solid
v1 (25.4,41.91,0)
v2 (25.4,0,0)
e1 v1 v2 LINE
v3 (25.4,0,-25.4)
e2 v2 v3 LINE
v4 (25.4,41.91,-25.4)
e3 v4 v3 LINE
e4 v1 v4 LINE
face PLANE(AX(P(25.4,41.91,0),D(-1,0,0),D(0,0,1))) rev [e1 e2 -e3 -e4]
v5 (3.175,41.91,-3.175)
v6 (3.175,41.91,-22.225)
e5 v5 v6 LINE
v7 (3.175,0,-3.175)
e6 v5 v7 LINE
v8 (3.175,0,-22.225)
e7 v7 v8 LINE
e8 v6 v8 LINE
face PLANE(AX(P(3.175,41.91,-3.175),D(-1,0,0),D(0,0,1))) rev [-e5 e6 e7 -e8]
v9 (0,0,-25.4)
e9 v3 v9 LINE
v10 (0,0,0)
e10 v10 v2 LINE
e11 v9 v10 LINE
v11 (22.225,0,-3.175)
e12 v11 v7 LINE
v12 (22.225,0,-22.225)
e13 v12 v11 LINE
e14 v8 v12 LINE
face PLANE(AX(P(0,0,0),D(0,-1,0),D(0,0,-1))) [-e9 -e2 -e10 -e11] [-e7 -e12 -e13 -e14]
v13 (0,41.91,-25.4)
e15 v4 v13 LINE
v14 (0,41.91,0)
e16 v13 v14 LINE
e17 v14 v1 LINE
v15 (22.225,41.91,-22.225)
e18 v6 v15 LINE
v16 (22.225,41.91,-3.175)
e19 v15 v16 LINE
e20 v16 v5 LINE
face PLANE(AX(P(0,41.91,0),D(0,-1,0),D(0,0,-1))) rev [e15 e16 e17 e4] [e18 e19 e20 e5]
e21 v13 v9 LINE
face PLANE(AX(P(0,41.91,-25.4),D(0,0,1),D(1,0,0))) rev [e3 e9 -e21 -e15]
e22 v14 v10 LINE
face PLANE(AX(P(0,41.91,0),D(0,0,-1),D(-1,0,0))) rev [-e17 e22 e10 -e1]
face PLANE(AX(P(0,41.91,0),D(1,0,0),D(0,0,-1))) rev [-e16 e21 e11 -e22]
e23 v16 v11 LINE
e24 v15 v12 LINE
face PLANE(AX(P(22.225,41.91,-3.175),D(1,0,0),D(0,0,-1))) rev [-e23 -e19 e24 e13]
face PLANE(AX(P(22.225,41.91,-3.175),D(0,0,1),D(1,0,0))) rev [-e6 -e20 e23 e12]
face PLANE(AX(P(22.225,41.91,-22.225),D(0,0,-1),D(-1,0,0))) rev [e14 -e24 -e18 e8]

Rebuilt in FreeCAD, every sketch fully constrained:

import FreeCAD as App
import Part
import Sketcher
from FreeCAD import Vector
Q = App.Units.Quantity

doc = App.newDocument("Part")
params = doc.addObject("Spreadsheet::Sheet", "Params")
for row, (alias, value) in enumerate([
    ("sketch1_width", "1 in"),
    ("pad1_length", "1.65 in"),
    ("sketch2_width", "0.75 in"),
], start=1):
    params.set(f"A{row}", alias)
    params.set(f"B{row}", "=" + value)
    params.setAlias(f"B{row}", alias)

body = doc.addObject("PartDesign::Body", "Body")

sketch1 = doc.addObject("Sketcher::SketchObject", "Sketch")
body.addObject(sketch1)
sketch1.AttachmentSupport = (doc.XZ_Plane, [""])
sketch1.MapMode = "FlatFace"
sketch1.addGeometry([
    Part.LineSegment(Vector(0, -25.4, 0), Vector(0, 0, 0)),
    Part.LineSegment(Vector(0, 0, 0), Vector(25.4, 0, 0)),
    Part.LineSegment(Vector(25.4, 0, 0), Vector(25.4, -25.4, 0)),
    Part.LineSegment(Vector(25.4, -25.4, 0), Vector(0, -25.4, 0)),
], False)
sketch1.addConstraint([
    Sketcher.Constraint("Coincident", 0, 2, 1, 1),
    Sketcher.Constraint("Coincident", 1, 2, 2, 1),
    Sketcher.Constraint("Coincident", 2, 2, 3, 1),
    Sketcher.Constraint("Coincident", 3, 2, 0, 1),
    Sketcher.Constraint("Vertical", 0),
    Sketcher.Constraint("Horizontal", 1),
    Sketcher.Constraint("Vertical", 2),
    Sketcher.Constraint("Horizontal", 3),
    Sketcher.Constraint("Coincident", 0, 2, -1, 1),
    Sketcher.Constraint("Equal", 3, 0),
    Sketcher.Constraint("DistanceX", 1, 1, 1, 2, Q("1 in")),
])
sketch1.setExpression("Constraints[10]", "Params.sketch1_width")
pad1 = doc.addObject("PartDesign::Pad", "Pad")
body.addObject(pad1)
pad1.Profile = sketch1
pad1.setExpression("Length", "Params.pad1_length")
pad1.Reversed = True

sketch2 = doc.addObject("Sketcher::SketchObject", "Sketch001")
body.addObject(sketch2)
sketch2.AttachmentSupport = (doc.XZ_Plane, [""])
sketch2.MapMode = "FlatFace"
sketch2.addGeometry([
    Part.LineSegment(Vector(22.225, -22.225, 0), Vector(22.225, -3.175, 0)),
    Part.LineSegment(Vector(22.225, -3.175, 0), Vector(3.175, -3.175, 0)),
    Part.LineSegment(Vector(3.175, -3.175, 0), Vector(3.175, -22.225, 0)),
    Part.LineSegment(Vector(3.175, -22.225, 0), Vector(22.225, -22.225, 0)),
], False)
sketch2.addConstraint([
    Sketcher.Constraint("Coincident", 0, 2, 1, 1),
    Sketcher.Constraint("Coincident", 1, 2, 2, 1),
    Sketcher.Constraint("Coincident", 2, 2, 3, 1),
    Sketcher.Constraint("Coincident", 3, 2, 0, 1),
    Sketcher.Constraint("Vertical", 0),
    Sketcher.Constraint("Horizontal", 1),
    Sketcher.Constraint("Vertical", 2),
    Sketcher.Constraint("Horizontal", 3),
    Sketcher.Constraint("Equal", 3, 0),
    Sketcher.Constraint("DistanceX", 1, 2, 1, 1, Q("0.75 in")),
    Sketcher.Constraint("DistanceX", -1, 1, 0, 2, Q("0.875 in")),
    Sketcher.Constraint("DistanceY", 0, 2, -1, 1, Q("0.125 in")),
])
sketch2.setExpression("Constraints[9]", "Params.sketch2_width")
pocket1 = doc.addObject("PartDesign::Pocket", "Pocket")
body.addObject(pocket1)
pocket1.Profile = sketch2
pocket1.Type = "ThroughAll"

doc.recompute()
